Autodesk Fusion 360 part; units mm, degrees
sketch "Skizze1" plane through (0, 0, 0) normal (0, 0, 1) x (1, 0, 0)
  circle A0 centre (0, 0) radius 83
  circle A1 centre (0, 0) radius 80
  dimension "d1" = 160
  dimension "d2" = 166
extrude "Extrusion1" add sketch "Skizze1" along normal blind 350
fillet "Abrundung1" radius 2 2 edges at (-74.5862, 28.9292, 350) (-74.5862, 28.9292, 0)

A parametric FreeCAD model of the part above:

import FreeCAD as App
import Part
import Sketcher

V = App.Vector
Q = App.Units.Quantity


def edges_at(feature, points):
    """Names of the edges that pass closest to the given points."""
    edges = feature.Shape.Edges
    near = lambda p: min(range(len(edges)), key=lambda i: edges[i].distToShape(Part.Vertex(*p))[0])
    return sorted({f"Edge{near(p) + 1}" for p in points})

doc = App.newDocument("Part")
params = doc.addObject("Spreadsheet::Sheet", "Params")
for row, (alias, value) in enumerate([
    ("sketch1_diameter", "166 mm"),
    ("sketch1_diameter2", "160 mm"),
    ("pad1_length", "350 mm"),
    ("fillet_radius", "2 mm"),
], start=1):
    params.set(f"A{row}", alias)
    params.set(f"B{row}", "=" + value)
    params.setAlias(f"B{row}", alias)

body = doc.addObject("PartDesign::Body", "Body")

# Sketch on XY plane
sketch1 = doc.addObject("Sketcher::SketchObject", "Sketch")
body.addObject(sketch1)
sketch1.AttachmentSupport = (doc.XY_Plane, [""])
sketch1.MapMode = "FlatFace"
sketch1.addGeometry([
    Part.Circle(V(0, 0, 0), V(0, 0, 1), 83),
    Part.Circle(V(0, 0, 0), V(0, 0, 1), 80),
], False)
sketch1.addConstraint([
    Sketcher.Constraint("Coincident", 0, 3, -1, 1),
    Sketcher.Constraint("Coincident", 1, 3, -1, 1),
    Sketcher.Constraint("Diameter", 0, Q("166 mm")),
    Sketcher.Constraint("Diameter", 1, Q("160 mm")),
])
sketch1.setExpression("Constraints[2]", "Params.sketch1_diameter")
sketch1.setExpression("Constraints[3]", "Params.sketch1_diameter2")
pad1 = doc.addObject("PartDesign::Pad", "Pad")
body.addObject(pad1)
pad1.Profile = sketch1
pad1.setExpression("Length", "Params.pad1_length")
doc.recompute()

fillet = doc.addObject("PartDesign::Fillet", "Fillet")
body.addObject(fillet)
fillet.Base = (pad1, edges_at(pad1, [(-74.586, 28.929, 350), (-74.586, 28.929, 0)]))
fillet.setExpression("Radius", "Params.fillet_radius")

doc.recompute()
